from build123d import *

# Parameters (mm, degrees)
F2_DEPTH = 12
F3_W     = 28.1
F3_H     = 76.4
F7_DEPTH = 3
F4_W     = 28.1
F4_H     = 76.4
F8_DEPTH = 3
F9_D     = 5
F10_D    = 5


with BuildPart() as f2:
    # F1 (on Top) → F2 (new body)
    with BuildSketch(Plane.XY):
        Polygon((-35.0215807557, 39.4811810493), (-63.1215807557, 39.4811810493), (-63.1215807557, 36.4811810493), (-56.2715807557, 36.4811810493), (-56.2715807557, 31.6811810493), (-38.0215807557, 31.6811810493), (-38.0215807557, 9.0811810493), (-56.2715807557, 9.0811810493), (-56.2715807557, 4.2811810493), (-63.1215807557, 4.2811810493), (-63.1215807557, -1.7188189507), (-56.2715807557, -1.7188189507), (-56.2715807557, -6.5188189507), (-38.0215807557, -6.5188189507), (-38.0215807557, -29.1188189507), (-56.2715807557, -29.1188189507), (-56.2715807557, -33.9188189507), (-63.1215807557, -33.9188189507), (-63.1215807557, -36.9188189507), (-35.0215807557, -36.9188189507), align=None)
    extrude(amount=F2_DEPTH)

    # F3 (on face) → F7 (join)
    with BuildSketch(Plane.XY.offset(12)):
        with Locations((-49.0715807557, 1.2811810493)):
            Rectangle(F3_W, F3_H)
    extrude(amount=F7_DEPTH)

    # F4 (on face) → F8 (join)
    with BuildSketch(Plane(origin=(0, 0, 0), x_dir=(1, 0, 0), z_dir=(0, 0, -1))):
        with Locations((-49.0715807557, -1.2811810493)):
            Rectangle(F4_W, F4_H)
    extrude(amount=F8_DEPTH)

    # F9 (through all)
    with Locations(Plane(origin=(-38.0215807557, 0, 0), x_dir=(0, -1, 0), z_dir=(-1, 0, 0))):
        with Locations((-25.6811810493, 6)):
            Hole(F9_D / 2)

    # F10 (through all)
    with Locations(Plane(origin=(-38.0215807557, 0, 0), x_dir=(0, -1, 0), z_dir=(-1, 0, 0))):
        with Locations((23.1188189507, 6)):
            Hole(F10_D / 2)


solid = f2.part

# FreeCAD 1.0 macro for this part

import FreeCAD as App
import Part
import Sketcher
from FreeCAD import Vector


def add_polygon(sketch, points):
    """Adds a closed chain of lines whose ends are joined by coincident constraints."""
    first, n = sketch.GeometryCount, len(points)
    for a, b in zip(points, points[1:] + points[:1]):
        sketch.addGeometry(Part.LineSegment(App.Vector(*a, 0), App.Vector(*b, 0)), False)
    for i in range(n):
        sketch.addConstraint(Sketcher.Constraint("Coincident", first + i, 2, first + (i + 1) % n, 1))

doc = App.newDocument("Part")
params = doc.addObject("Spreadsheet::Sheet", "Params")
for row, (alias, value) in enumerate([
    ("sketch1_height", "3 mm"),
    ("sketch1_height2", "6 mm"),
    ("sketch1_width", "28.1 mm"),
    ("sketch1_height3", "4.8 mm"),
    ("sketch1_height4", "22.6 mm"),
    ("pad1_length", "12 mm"),
    ("sketch2_width", "28.1 mm"),
    ("sketch2_height", "76.4 mm"),
    ("pad2_length", "3 mm"),
    ("sketch3_width", "28.1 mm"),
    ("sketch3_height", "76.4 mm"),
    ("pad3_length", "3 mm"),
    ("sketch4_diameter", "5 mm"),
    ("hole_diameter", "5 mm"),
    ("sketch5_diameter", "5 mm"),
    ("hole2_diameter", "5 mm"),
], start=1):
    params.set(f"A{row}", alias)
    params.set(f"B{row}", "=" + value)
    params.setAlias(f"B{row}", alias)

body = doc.addObject("PartDesign::Body", "Body")

sketch1 = body.newObject("Sketcher::SketchObject", "Sketch")
sketch1.AttachmentSupport = (doc.getObject("XY_Plane"), [""])
sketch1.MapMode = "FlatFace"
add_polygon(sketch1, [(-35.021581, 39.481181), (-63.121581, 39.481181), (-63.121581, 36.481181), (-56.271581, 36.481181), (-56.271581, 31.681181), (-38.021581, 31.681181), (-38.021581, 9.081181), (-56.271581, 9.081181), (-56.271581, 4.281181), (-63.121581, 4.281181), (-63.121581, -1.718819), (-56.271581, -1.718819), (-56.271581, -6.518819), (-38.021581, -6.518819), (-38.021581, -29.118819), (-56.271581, -29.118819), (-56.271581, -33.918819), (-63.121581, -33.918819), (-63.121581, -36.918819), (-35.021581, -36.918819)])
sketch1.addConstraint([
    Sketcher.Constraint("Horizontal", 0),
    Sketcher.Constraint("Vertical", 1),
    Sketcher.Constraint("Horizontal", 2),
    Sketcher.Constraint("Vertical", 3),
    Sketcher.Constraint("Horizontal", 4),
    Sketcher.Constraint("Vertical", 5),
    Sketcher.Constraint("Horizontal", 6),
    Sketcher.Constraint("Vertical", 7),
    Sketcher.Constraint("Horizontal", 8),
    Sketcher.Constraint("Vertical", 9),
    Sketcher.Constraint("Horizontal", 10),
    Sketcher.Constraint("Vertical", 11),
    Sketcher.Constraint("Horizontal", 12),
    Sketcher.Constraint("Vertical", 13),
    Sketcher.Constraint("Horizontal", 14),
    Sketcher.Constraint("Vertical", 15),
    Sketcher.Constraint("Horizontal", 16),
    Sketcher.Constraint("Vertical", 17),
    Sketcher.Constraint("Horizontal", 18),
    Sketcher.Constraint("Vertical", 19),
    Sketcher.Constraint("Vertical", 3, 2, 6, 2),
    Sketcher.Constraint("Vertical", 1, 2, 8, 2),
    Sketcher.Constraint("Vertical", 7, 2, 10, 2),
    Sketcher.Constraint("Vertical", 5, 2, 12, 2),
    Sketcher.Constraint("Vertical", 11, 2, 14, 2),
    Sketcher.Constraint("Vertical", 9, 2, 16, 2),
    Sketcher.Constraint("Equal", 3, 7),
    Sketcher.Constraint("Equal", 7, 11),
    Sketcher.Constraint("Equal", 5, 13),
    Sketcher.Constraint("Equal", 11, 15),
    Sketcher.Constraint("Equal", 1, 17),
    Sketcher.Constraint("DistanceY", 1, 2, 1, 1, 3.0),
    Sketcher.Constraint("DistanceY", 9, 2, 9, 1, 6.0),
    Sketcher.Constraint("DistanceX", 0, 2, 0, 1, 28.1),
    Sketcher.Constraint("DistanceY", 3, 2, 3, 1, 4.8),
    Sketcher.Constraint("DistanceY", 5, 2, 5, 1, 22.6),
    Sketcher.Constraint("DistanceX", 13, 2, 18, 2, 3.0),
    Sketcher.Constraint("DistanceX", 2, 1, 2, 2, 6.85),
    Sketcher.Constraint("DistanceX", 0, 2, -1, 1, 63.121581),
    Sketcher.Constraint("DistanceY", -1, 1, 0, 2, 39.481181),
])
sketch1.setExpression("Constraints[51]", "Params.sketch1_height")
sketch1.setExpression("Constraints[52]", "Params.sketch1_height2")
sketch1.setExpression("Constraints[53]", "Params.sketch1_width")
sketch1.setExpression("Constraints[54]", "Params.sketch1_height3")
sketch1.setExpression("Constraints[55]", "Params.sketch1_height4")
pad1 = body.newObject("PartDesign::Pad", "Pad")
pad1.Profile = sketch1
pad1.setExpression("Length", "Params.pad1_length")

sketch2 = body.newObject("Sketcher::SketchObject", "Sketch001")
sketch2.AttachmentSupport = (doc.getObject("XY_Plane"), [""])
sketch2.MapMode = "FlatFace"
sketch2.AttachmentOffset = App.Placement(Vector(0, 0, 12), App.Rotation())
add_polygon(sketch2, [(-63.121581, 39.481181), (-63.121581, -36.918819), (-35.021581, -36.918819), (-35.021581, 39.481181)])
sketch2.addConstraint([
    Sketcher.Constraint("Vertical", 0),
    Sketcher.Constraint("Horizontal", 1),
    Sketcher.Constraint("Vertical", 2),
    Sketcher.Constraint("Horizontal", 3),
    Sketcher.Constraint("DistanceX", 1, 1, 1, 2, 28.1),
    Sketcher.Constraint("DistanceY", 0, 2, 0, 1, 76.4),
    Sketcher.Constraint("DistanceX", 0, 2, -1, 1, 63.121581),
    Sketcher.Constraint("DistanceY", 0, 2, -1, 1, 36.918819),
])
sketch2.setExpression("Constraints[8]", "Params.sketch2_width")
sketch2.setExpression("Constraints[9]", "Params.sketch2_height")
pad2 = body.newObject("PartDesign::Pad", "Pad001")
pad2.Profile = sketch2
pad2.setExpression("Length", "Params.pad2_length")

sketch3 = body.newObject("Sketcher::SketchObject", "Sketch002")
sketch3.AttachmentSupport = (doc.getObject("XY_Plane"), [""])
sketch3.MapMode = "FlatFace"
add_polygon(sketch3, [(-63.121581, -36.918819), (-63.121581, 39.481181), (-35.021581, 39.481181), (-35.021581, -36.918819)])
sketch3.addConstraint([
    Sketcher.Constraint("Vertical", 0),
    Sketcher.Constraint("Horizontal", 1),
    Sketcher.Constraint("Vertical", 2),
    Sketcher.Constraint("Horizontal", 3),
    Sketcher.Constraint("DistanceX", 1, 1, 1, 2, 28.1),
    Sketcher.Constraint("DistanceY", 0, 1, 0, 2, 76.4),
    Sketcher.Constraint("DistanceX", 0, 2, -1, 1, 63.121581),
    Sketcher.Constraint("DistanceY", -1, 1, 0, 2, 39.481181),
])
sketch3.setExpression("Constraints[8]", "Params.sketch3_width")
sketch3.setExpression("Constraints[9]", "Params.sketch3_height")
pad3 = body.newObject("PartDesign::Pad", "Pad002")
pad3.Profile = sketch3
pad3.setExpression("Length", "Params.pad3_length")
pad3.Reversed = True

sketch4 = body.newObject("Sketcher::SketchObject", "Sketch003")
sketch4.AttachmentSupport = (doc.getObject("YZ_Plane"), [""])
sketch4.MapMode = "FlatFace"
sketch4.AttachmentOffset = App.Placement(Vector(0, 0, -38.021581), App.Rotation())
sketch4.addGeometry(Part.Circle(Vector(25.681181, 6, 0), Vector(0, 0, 1), 2.5), False)
sketch4.addConstraint([
    Sketcher.Constraint("Diameter", 0, 5.0),
    Sketcher.Constraint("DistanceY", -1, 1, 0, 3, 6.0),
    Sketcher.Constraint("DistanceX", -1, 1, 0, 3, 25.681181),
])
sketch4.setExpression("Constraints[0]", "Params.sketch4_diameter")
doc.recompute()
hole = body.newObject("PartDesign::Hole", "Hole")
hole.Profile = sketch4
hole.ThreadType = "None"
hole.setExpression("Diameter", "Params.hole_diameter")
hole.DepthType = "ThroughAll"
hole.Reversed = True

sketch5 = body.newObject("Sketcher::SketchObject", "Sketch004")
sketch5.AttachmentSupport = (doc.getObject("YZ_Plane"), [""])
sketch5.MapMode = "FlatFace"
sketch5.AttachmentOffset = App.Placement(Vector(0, 0, -38.021581), App.Rotation())
sketch5.addGeometry(Part.Circle(Vector(-23.118819, 6, 0), Vector(0, 0, 1), 2.5), False)
sketch5.addConstraint([
    Sketcher.Constraint("Diameter", 0, 5.0),
    Sketcher.Constraint("DistanceY", -1, 1, 0, 3, 6.0),
    Sketcher.Constraint("DistanceX", 0, 3, -1, 1, 23.118819),
])
sketch5.setExpression("Constraints[0]", "Params.sketch5_diameter")
doc.recompute()
hole2 = body.newObject("PartDesign::Hole", "Hole001")
hole2.Profile = sketch5
hole2.ThreadType = "None"
hole2.setExpression("Diameter", "Params.hole2_diameter")
hole2.DepthType = "ThroughAll"
hole2.Reversed = True

doc.recompute()
